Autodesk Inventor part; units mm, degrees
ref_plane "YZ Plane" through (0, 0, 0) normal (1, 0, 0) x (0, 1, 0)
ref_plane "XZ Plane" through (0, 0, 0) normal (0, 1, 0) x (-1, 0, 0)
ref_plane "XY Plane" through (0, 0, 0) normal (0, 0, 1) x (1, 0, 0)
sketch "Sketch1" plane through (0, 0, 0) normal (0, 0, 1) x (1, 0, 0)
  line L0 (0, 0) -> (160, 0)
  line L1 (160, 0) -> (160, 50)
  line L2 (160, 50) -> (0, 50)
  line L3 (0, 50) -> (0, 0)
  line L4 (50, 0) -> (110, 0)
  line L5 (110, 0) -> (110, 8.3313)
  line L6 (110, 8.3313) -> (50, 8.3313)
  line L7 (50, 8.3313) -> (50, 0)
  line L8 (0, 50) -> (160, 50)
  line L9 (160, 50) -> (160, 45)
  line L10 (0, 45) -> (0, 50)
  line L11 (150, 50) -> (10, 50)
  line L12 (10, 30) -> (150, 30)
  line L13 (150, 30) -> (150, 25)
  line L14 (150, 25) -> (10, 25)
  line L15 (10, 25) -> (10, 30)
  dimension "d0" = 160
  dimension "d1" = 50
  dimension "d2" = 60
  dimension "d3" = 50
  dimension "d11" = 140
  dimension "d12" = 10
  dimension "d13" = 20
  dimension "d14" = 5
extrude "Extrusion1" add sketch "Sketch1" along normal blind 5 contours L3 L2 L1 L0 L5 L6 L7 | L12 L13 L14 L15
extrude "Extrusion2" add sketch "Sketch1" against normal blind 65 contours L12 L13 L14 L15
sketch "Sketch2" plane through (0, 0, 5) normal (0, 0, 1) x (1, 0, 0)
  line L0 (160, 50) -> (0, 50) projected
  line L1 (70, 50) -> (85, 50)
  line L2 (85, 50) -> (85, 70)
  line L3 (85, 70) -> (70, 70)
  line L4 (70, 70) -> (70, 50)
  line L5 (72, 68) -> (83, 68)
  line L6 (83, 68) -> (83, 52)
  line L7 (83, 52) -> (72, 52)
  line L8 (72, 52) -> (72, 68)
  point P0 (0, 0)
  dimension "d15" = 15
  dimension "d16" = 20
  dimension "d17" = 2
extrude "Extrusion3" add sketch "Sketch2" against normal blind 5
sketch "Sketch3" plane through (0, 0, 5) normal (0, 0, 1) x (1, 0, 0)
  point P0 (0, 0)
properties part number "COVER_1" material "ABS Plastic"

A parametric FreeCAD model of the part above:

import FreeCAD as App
import Part
import Sketcher

V = App.Vector


def add_polygon(sketch, points):
    """Adds a closed chain of lines whose ends are joined by coincident constraints."""
    first, n = sketch.GeometryCount, len(points)
    for a, b in zip(points, points[1:] + points[:1]):
        sketch.addGeometry(Part.LineSegment(App.Vector(*a, 0), App.Vector(*b, 0)), False)
    for i in range(n):
        sketch.addConstraint(Sketcher.Constraint("Coincident", first + i, 2, first + (i + 1) % n, 1))

doc = App.newDocument("Part")
params = doc.addObject("Spreadsheet::Sheet", "Params")
for row, (alias, value) in enumerate([
    ("sketch1_width", "50 mm"),
    ("sketch1_width2", "60 mm"),
    ("pad1_length", "5 mm"),
    ("sketch2_width", "140 mm"),
    ("sketch2_height", "5 mm"),
    ("pad2_length", "65 mm"),
    ("sketch3_width", "15 mm"),
    ("sketch3_height", "20 mm"),
    ("pad3_length", "5 mm"),
], start=1):
    params.set(f"A{row}", alias)
    params.set(f"B{row}", "=" + value)
    params.setAlias(f"B{row}", alias)

body = doc.addObject("PartDesign::Body", "Body")

# Sketch on XY plane
sketch1 = body.newObject("Sketcher::SketchObject", "Sketch")
sketch1.AttachmentSupport = (doc.getObject("XY_Plane"), [""])
sketch1.MapMode = "FlatFace"
add_polygon(sketch1, [(0, 0), (50, 0), (50, 8.3313), (110, 8.3313), (110, 0), (160, 0), (160, 50), (0, 50)])  # lines 0-7
sketch1.addConstraint(Sketcher.Constraint("Horizontal", 0))
sketch1.addConstraint(Sketcher.Constraint("Vertical", 1))
sketch1.addConstraint(Sketcher.Constraint("Horizontal", 2))
sketch1.addConstraint(Sketcher.Constraint("Vertical", 3))
sketch1.addConstraint(Sketcher.Constraint("Horizontal", 4))
sketch1.addConstraint(Sketcher.Constraint("Vertical", 5))
sketch1.addConstraint(Sketcher.Constraint("Horizontal", 6))
sketch1.addConstraint(Sketcher.Constraint("Vertical", 7))
sketch1.addConstraint(Sketcher.Constraint("Coincident", 7, 2, -1, 1))
sketch1.addConstraint(Sketcher.Constraint("PointOnObject", 3, 2, -1))
sketch1.addConstraint(Sketcher.Constraint("Equal", 0, 4))
sketch1.addConstraint(Sketcher.Constraint("Equal", 4, 5))
sketch1.addConstraint(Sketcher.Constraint("DistanceX", 0, 1, 0, 2, 50.0))
sketch1.addConstraint(Sketcher.Constraint("DistanceX", 2, 1, 2, 2, 60.0))
sketch1.addConstraint(Sketcher.Constraint("DistanceY", 1, 1, 1, 2, 8.3313))
sketch1.setExpression("Constraints[20]", "Params.sketch1_width")
sketch1.setExpression("Constraints[21]", "Params.sketch1_width2")
pad1 = body.newObject("PartDesign::Pad", "Pad")
pad1.Profile = sketch1
pad1.setExpression("Length", "Params.pad1_length")

# Sketch on XY plane
sketch2 = body.newObject("Sketcher::SketchObject", "Sketch001")
sketch2.AttachmentSupport = (doc.getObject("XY_Plane"), [""])
sketch2.MapMode = "FlatFace"
add_polygon(sketch2, [(150, 30), (10, 30), (10, 25), (150, 25)])  # lines 0-3
sketch2.addConstraint(Sketcher.Constraint("Horizontal", 0))
sketch2.addConstraint(Sketcher.Constraint("Vertical", 1))
sketch2.addConstraint(Sketcher.Constraint("Horizontal", 2))
sketch2.addConstraint(Sketcher.Constraint("Vertical", 3))
sketch2.addConstraint(Sketcher.Constraint("DistanceX", 0, 2, 0, 1, 140.0))
sketch2.addConstraint(Sketcher.Constraint("DistanceY", 1, 2, 1, 1, 5.0))
sketch2.addConstraint(Sketcher.Constraint("DistanceX", -1, 1, 0, 2, 10.0))
sketch2.addConstraint(Sketcher.Constraint("DistanceY", -1, 1, 0, 2, 30.0))
sketch2.setExpression("Constraints[8]", "Params.sketch2_width")
sketch2.setExpression("Constraints[9]", "Params.sketch2_height")
pad2 = body.newObject("PartDesign::Pad", "Pad001")
pad2.Profile = sketch2
pad2.setExpression("Length", "Params.pad2_length")
pad2.Reversed = True

# Sketch on XY plane
sketch3 = body.newObject("Sketcher::SketchObject", "Sketch002")
sketch3.AttachmentSupport = (doc.getObject("XY_Plane"), [""])
sketch3.MapMode = "FlatFace"
sketch3.AttachmentOffset = App.Placement(V(0, 0, 5), App.Rotation())
add_polygon(sketch3, [(70, 50), (85, 50), (85, 70), (70, 70)])  # lines 0-3
add_polygon(sketch3, [(72, 52), (72, 68), (83, 68), (83, 52)])  # lines 4-7
sketch3.addConstraint(Sketcher.Constraint("Horizontal", 0))
sketch3.addConstraint(Sketcher.Constraint("Vertical", 1))
sketch3.addConstraint(Sketcher.Constraint("Horizontal", 2))
sketch3.addConstraint(Sketcher.Constraint("Vertical", 3))
sketch3.addConstraint(Sketcher.Constraint("Vertical", 4))
sketch3.addConstraint(Sketcher.Constraint("Horizontal", 5))
sketch3.addConstraint(Sketcher.Constraint("Vertical", 6))
sketch3.addConstraint(Sketcher.Constraint("Horizontal", 7))
sketch3.addConstraint(Sketcher.Constraint("DistanceX", 0, 1, 0, 2, 15.0))
sketch3.addConstraint(Sketcher.Constraint("DistanceY", 1, 1, 1, 2, 20.0))
sketch3.addConstraint(Sketcher.Constraint("DistanceX", 2, 2, 4, 2, 2.0))
sketch3.addConstraint(Sketcher.Constraint("DistanceY", 4, 2, 2, 2, 2.0))
sketch3.addConstraint(Sketcher.Constraint("DistanceX", 5, 2, 1, 2, 2.0))
sketch3.addConstraint(Sketcher.Constraint("DistanceY", 0, 2, 6, 2, 2.0))
sketch3.addConstraint(Sketcher.Constraint("DistanceX", -1, 1, 0, 2, 85.0))
sketch3.addConstraint(Sketcher.Constraint("DistanceY", -1, 1, 0, 2, 50.0))
sketch3.setExpression("Constraints[16]", "Params.sketch3_width")
sketch3.setExpression("Constraints[17]", "Params.sketch3_height")
pad3 = body.newObject("PartDesign::Pad", "Pad002")
pad3.Profile = sketch3
pad3.setExpression("Length", "Params.pad3_length")
pad3.Reversed = True

doc.recompute()
